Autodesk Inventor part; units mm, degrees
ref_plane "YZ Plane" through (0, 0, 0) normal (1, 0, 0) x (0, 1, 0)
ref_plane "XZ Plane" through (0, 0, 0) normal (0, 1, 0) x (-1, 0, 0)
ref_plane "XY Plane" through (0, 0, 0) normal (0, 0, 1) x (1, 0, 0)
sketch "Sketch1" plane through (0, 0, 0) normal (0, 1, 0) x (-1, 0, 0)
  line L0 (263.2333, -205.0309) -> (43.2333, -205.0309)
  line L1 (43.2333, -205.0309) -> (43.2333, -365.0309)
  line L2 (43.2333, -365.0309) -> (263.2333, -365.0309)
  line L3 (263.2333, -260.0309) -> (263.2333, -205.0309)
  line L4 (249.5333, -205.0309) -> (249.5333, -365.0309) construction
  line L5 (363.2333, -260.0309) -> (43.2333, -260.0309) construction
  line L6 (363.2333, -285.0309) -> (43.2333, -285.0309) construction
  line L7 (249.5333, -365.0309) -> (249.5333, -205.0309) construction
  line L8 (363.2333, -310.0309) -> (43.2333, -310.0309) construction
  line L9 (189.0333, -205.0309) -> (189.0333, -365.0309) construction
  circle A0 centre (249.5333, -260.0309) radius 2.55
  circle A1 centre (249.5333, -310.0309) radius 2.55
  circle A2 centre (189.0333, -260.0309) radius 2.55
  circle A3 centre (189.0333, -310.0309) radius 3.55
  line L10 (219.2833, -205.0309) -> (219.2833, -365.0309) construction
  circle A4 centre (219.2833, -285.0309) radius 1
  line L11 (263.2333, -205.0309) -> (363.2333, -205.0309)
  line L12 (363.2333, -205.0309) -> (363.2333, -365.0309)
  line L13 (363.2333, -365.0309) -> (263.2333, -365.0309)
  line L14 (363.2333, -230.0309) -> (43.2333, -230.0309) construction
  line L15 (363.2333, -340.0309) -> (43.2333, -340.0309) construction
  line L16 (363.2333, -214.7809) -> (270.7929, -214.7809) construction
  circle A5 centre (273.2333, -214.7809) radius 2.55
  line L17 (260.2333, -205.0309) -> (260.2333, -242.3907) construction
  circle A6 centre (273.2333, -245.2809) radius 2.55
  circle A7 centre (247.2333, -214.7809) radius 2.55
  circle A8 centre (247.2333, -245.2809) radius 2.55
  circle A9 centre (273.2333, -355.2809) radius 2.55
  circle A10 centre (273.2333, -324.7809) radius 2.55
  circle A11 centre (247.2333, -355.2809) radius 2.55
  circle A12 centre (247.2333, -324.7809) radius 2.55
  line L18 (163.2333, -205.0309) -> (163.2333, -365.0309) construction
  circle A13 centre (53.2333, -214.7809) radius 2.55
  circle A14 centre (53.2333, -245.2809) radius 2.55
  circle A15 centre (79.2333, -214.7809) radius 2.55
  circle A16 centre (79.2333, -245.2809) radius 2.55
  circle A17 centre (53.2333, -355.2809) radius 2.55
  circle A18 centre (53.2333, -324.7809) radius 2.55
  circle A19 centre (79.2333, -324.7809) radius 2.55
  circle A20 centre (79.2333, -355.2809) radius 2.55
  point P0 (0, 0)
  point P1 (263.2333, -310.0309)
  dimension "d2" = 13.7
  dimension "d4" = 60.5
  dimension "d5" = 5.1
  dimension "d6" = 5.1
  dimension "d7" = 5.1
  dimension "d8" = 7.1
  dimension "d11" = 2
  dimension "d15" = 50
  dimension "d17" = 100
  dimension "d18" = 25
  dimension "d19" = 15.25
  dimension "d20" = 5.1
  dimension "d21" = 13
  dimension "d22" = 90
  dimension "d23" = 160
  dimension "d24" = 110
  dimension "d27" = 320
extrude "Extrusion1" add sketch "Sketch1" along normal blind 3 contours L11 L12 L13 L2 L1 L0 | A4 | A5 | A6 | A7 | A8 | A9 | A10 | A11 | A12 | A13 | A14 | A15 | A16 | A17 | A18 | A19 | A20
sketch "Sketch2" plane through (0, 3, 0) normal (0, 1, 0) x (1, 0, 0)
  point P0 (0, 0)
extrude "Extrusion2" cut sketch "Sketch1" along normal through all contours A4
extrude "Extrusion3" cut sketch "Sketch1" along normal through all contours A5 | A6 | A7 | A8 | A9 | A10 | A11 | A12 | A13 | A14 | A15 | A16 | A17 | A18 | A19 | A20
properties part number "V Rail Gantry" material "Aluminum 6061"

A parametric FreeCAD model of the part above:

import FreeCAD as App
import Part
import Sketcher
from FreeCAD import Vector


def add_polygon(sketch, points):
    """Adds a closed chain of lines whose ends are joined by coincident constraints."""
    first, n = sketch.GeometryCount, len(points)
    for a, b in zip(points, points[1:] + points[:1]):
        sketch.addGeometry(Part.LineSegment(App.Vector(*a, 0), App.Vector(*b, 0)), False)
    for i in range(n):
        sketch.addConstraint(Sketcher.Constraint("Coincident", first + i, 2, first + (i + 1) % n, 1))

doc = App.newDocument("Part")
body = doc.addObject("PartDesign::Body", "Body")

# Sketch on XZ plane
sketch1 = body.newObject("Sketcher::SketchObject", "Sketch")
sketch1.AttachmentSupport = (doc.getObject("XZ_Plane"), [""])
sketch1.MapMode = "FlatFace"
add_polygon(sketch1, [(-363.2333, -205.0309), (-43.2333, -205.0309), (-43.2333, -365.0309), (-363.2333, -365.0309)])  # lines 0-3
sketch1.addGeometry(Part.Circle(Vector(-189.0333, -310.0309, 0), Vector(0, 0, 1), 3.55), False)  # 4
sketch1.addGeometry(Part.Circle(Vector(-249.5333, -310.0309, 0), Vector(0, 0, 1), 2.55), False)  # 5
sketch1.addGeometry(Part.Circle(Vector(-189.0333, -260.0309, 0), Vector(0, 0, 1), 2.55), False)  # 6
sketch1.addGeometry(Part.Circle(Vector(-249.5333, -260.0309, 0), Vector(0, 0, 1), 2.55), False)  # 7
sketch1.addConstraint(Sketcher.Constraint("Horizontal", 0))
sketch1.addConstraint(Sketcher.Constraint("Vertical", 1))
sketch1.addConstraint(Sketcher.Constraint("Horizontal", 2))
sketch1.addConstraint(Sketcher.Constraint("Vertical", 3))
sketch1.addConstraint(Sketcher.Constraint("Equal", 5, 6))
sketch1.addConstraint(Sketcher.Constraint("Equal", 6, 7))
sketch1.addConstraint(Sketcher.Constraint("Horizontal", 4, 3, 5, 3))
sketch1.addConstraint(Sketcher.Constraint("Horizontal", 6, 3, 7, 3))
sketch1.addConstraint(Sketcher.Constraint("Vertical", 4, 3, 6, 3))
sketch1.addConstraint(Sketcher.Constraint("Vertical", 5, 3, 7, 3))
sketch1.addConstraint(Sketcher.Constraint("Diameter", 4, 7.1))
sketch1.addConstraint(Sketcher.Constraint("Diameter", 5, 5.1))
sketch1.addConstraint(Sketcher.Constraint("DistanceX", 0, 1, 0, 2, 320.0))
sketch1.addConstraint(Sketcher.Constraint("DistanceY", 1, 2, 1, 1, 160.0))
sketch1.addConstraint(Sketcher.Constraint("DistanceY", 4, 3, 6, 3, 50.0))
sketch1.addConstraint(Sketcher.Constraint("DistanceX", 5, 3, 4, 3, 60.5))
sketch1.addConstraint(Sketcher.Constraint("DistanceY", 6, 3, 0, 2, 55.0))
sketch1.addConstraint(Sketcher.Constraint("DistanceX", 6, 3, 0, 2, 145.8))
sketch1.addConstraint(Sketcher.Constraint("DistanceY", 4, 3, -1, 1, 310.031))
sketch1.addConstraint(Sketcher.Constraint("DistanceX", 4, 3, -1, 1, 189.0333))
pad1 = body.newObject("PartDesign::Pad", "Pad")
pad1.Profile = sketch1
pad1.Length = 3
pad1.Reversed = True

# Sketch on XZ plane
sketch2 = body.newObject("Sketcher::SketchObject", "Sketch001")
sketch2.AttachmentSupport = (doc.getObject("XZ_Plane"), [""])
sketch2.MapMode = "FlatFace"
sketch2.addGeometry(Part.Circle(Vector(-219.2833, -285.0309, 0), Vector(0, 0, 1), 1), False)
sketch2.addConstraint(Sketcher.Constraint("Diameter", 0, 2.0))
sketch2.addConstraint(Sketcher.Constraint("DistanceY", 0, 3, -1, 1, 285.031))
sketch2.addConstraint(Sketcher.Constraint("DistanceX", 0, 3, -1, 1, 219.2833))
pocket1 = body.newObject("PartDesign::Pocket", "Pocket")
pocket1.Profile = sketch2
pocket1.Type = "ThroughAll"

# Sketch on XZ plane
sketch3 = body.newObject("Sketcher::SketchObject", "Sketch002")
sketch3.AttachmentSupport = (doc.getObject("XZ_Plane"), [""])
sketch3.MapMode = "FlatFace"
sketch3.addGeometry(Part.Circle(Vector(-273.2333, -214.7809, 0), Vector(0, 0, 1), 2.55), False)
sketch3.addGeometry(Part.Circle(Vector(-273.2333, -245.2809, 0), Vector(0, 0, 1), 2.55), False)
sketch3.addGeometry(Part.Circle(Vector(-247.2333, -214.7809, 0), Vector(0, 0, 1), 2.55), False)
sketch3.addGeometry(Part.Circle(Vector(-247.2333, -245.2809, 0), Vector(0, 0, 1), 2.55), False)
sketch3.addGeometry(Part.Circle(Vector(-273.2333, -355.2809, 0), Vector(0, 0, 1), 2.55), False)
sketch3.addGeometry(Part.Circle(Vector(-273.2333, -324.7809, 0), Vector(0, 0, 1), 2.55), False)
sketch3.addGeometry(Part.Circle(Vector(-247.2333, -355.2809, 0), Vector(0, 0, 1), 2.55), False)
sketch3.addGeometry(Part.Circle(Vector(-247.2333, -324.7809, 0), Vector(0, 0, 1), 2.55), False)
sketch3.addGeometry(Part.Circle(Vector(-53.2333, -214.7809, 0), Vector(0, 0, 1), 2.55), False)
sketch3.addGeometry(Part.Circle(Vector(-53.2333, -245.2809, 0), Vector(0, 0, 1), 2.55), False)
sketch3.addGeometry(Part.Circle(Vector(-79.2333, -214.7809, 0), Vector(0, 0, 1), 2.55), False)
sketch3.addGeometry(Part.Circle(Vector(-79.2333, -245.2809, 0), Vector(0, 0, 1), 2.55), False)
sketch3.addGeometry(Part.Circle(Vector(-53.2333, -355.2809, 0), Vector(0, 0, 1), 2.55), False)
sketch3.addGeometry(Part.Circle(Vector(-53.2333, -324.7809, 0), Vector(0, 0, 1), 2.55), False)
sketch3.addGeometry(Part.Circle(Vector(-79.2333, -324.7809, 0), Vector(0, 0, 1), 2.55), False)
sketch3.addGeometry(Part.Circle(Vector(-79.2333, -355.2809, 0), Vector(0, 0, 1), 2.55), False)
sketch3.addConstraint(Sketcher.Constraint("Equal", 0, 1))
sketch3.addConstraint(Sketcher.Constraint("Equal", 1, 2))
sketch3.addConstraint(Sketcher.Constraint("Equal", 2, 3))
sketch3.addConstraint(Sketcher.Constraint("Equal", 3, 4))
sketch3.addConstraint(Sketcher.Constraint("Equal", 4, 5))
sketch3.addConstraint(Sketcher.Constraint("Equal", 5, 6))
sketch3.addConstraint(Sketcher.Constraint("Equal", 6, 7))
sketch3.addConstraint(Sketcher.Constraint("Equal", 7, 8))
sketch3.addConstraint(Sketcher.Constraint("Equal", 8, 9))
sketch3.addConstraint(Sketcher.Constraint("Equal", 9, 10))
sketch3.addConstraint(Sketcher.Constraint("Equal", 10, 11))
sketch3.addConstraint(Sketcher.Constraint("Equal", 11, 12))
sketch3.addConstraint(Sketcher.Constraint("Equal", 12, 13))
sketch3.addConstraint(Sketcher.Constraint("Equal", 13, 14))
sketch3.addConstraint(Sketcher.Constraint("Equal", 14, 15))
sketch3.addConstraint(Sketcher.Constraint("Horizontal", 0, 3, 2, 3))
sketch3.addConstraint(Sketcher.Constraint("Horizontal", 1, 3, 3, 3))
sketch3.addConstraint(Sketcher.Constraint("Horizontal", 4, 3, 6, 3))
sketch3.addConstraint(Sketcher.Constraint("Horizontal", 5, 3, 7, 3))
sketch3.addConstraint(Sketcher.Constraint("Horizontal", 2, 3, 8, 3))
sketch3.addConstraint(Sketcher.Constraint("Horizontal", 3, 3, 9, 3))
sketch3.addConstraint(Sketcher.Constraint("Horizontal", 8, 3, 10, 3))
sketch3.addConstraint(Sketcher.Constraint("Horizontal", 9, 3, 11, 3))
sketch3.addConstraint(Sketcher.Constraint("Horizontal", 6, 3, 12, 3))
sketch3.addConstraint(Sketcher.Constraint("Horizontal", 7, 3, 13, 3))
sketch3.addConstraint(Sketcher.Constraint("Horizontal", 13, 3, 14, 3))
sketch3.addConstraint(Sketcher.Constraint("Horizontal", 12, 3, 15, 3))
sketch3.addConstraint(Sketcher.Constraint("Vertical", 0, 3, 1, 3))
sketch3.addConstraint(Sketcher.Constraint("Vertical", 2, 3, 3, 3))
sketch3.addConstraint(Sketcher.Constraint("Vertical", 1, 3, 4, 3))
sketch3.addConstraint(Sketcher.Constraint("Vertical", 4, 3, 5, 3))
sketch3.addConstraint(Sketcher.Constraint("Vertical", 3, 3, 6, 3))
sketch3.addConstraint(Sketcher.Constraint("Vertical", 6, 3, 7, 3))
sketch3.addConstraint(Sketcher.Constraint("Vertical", 8, 3, 9, 3))
sketch3.addConstraint(Sketcher.Constraint("Vertical", 10, 3, 11, 3))
sketch3.addConstraint(Sketcher.Constraint("Vertical", 9, 3, 12, 3))
sketch3.addConstraint(Sketcher.Constraint("Vertical", 12, 3, 13, 3))
sketch3.addConstraint(Sketcher.Constraint("Vertical", 11, 3, 14, 3))
sketch3.addConstraint(Sketcher.Constraint("Vertical", 14, 3, 15, 3))
sketch3.addConstraint(Sketcher.Constraint("Diameter", 0, 5.1))
sketch3.addConstraint(Sketcher.Constraint("DistanceY", 4, 3, 1, 3, 110.0))
sketch3.addConstraint(Sketcher.Constraint("DistanceY", 5, 3, 0, 3, 110.0))
sketch3.addConstraint(Sketcher.Constraint("DistanceX", 0, 3, 2, 3, 26.0))
sketch3.addConstraint(Sketcher.Constraint("DistanceX", 2, 3, 8, 3, 194.0))
sketch3.addConstraint(Sketcher.Constraint("DistanceX", 10, 3, 8, 3, 26.0))
sketch3.addConstraint(Sketcher.Constraint("DistanceY", 1, 3, 0, 3, 30.5))
sketch3.addConstraint(Sketcher.Constraint("DistanceY", 0, 3, -1, 1, 214.781))
sketch3.addConstraint(Sketcher.Constraint("DistanceX", 0, 3, -1, 1, 273.2333))
pocket2 = body.newObject("PartDesign::Pocket", "Pocket001")
pocket2.Profile = sketch3
pocket2.Type = "ThroughAll"

doc.recompute()
